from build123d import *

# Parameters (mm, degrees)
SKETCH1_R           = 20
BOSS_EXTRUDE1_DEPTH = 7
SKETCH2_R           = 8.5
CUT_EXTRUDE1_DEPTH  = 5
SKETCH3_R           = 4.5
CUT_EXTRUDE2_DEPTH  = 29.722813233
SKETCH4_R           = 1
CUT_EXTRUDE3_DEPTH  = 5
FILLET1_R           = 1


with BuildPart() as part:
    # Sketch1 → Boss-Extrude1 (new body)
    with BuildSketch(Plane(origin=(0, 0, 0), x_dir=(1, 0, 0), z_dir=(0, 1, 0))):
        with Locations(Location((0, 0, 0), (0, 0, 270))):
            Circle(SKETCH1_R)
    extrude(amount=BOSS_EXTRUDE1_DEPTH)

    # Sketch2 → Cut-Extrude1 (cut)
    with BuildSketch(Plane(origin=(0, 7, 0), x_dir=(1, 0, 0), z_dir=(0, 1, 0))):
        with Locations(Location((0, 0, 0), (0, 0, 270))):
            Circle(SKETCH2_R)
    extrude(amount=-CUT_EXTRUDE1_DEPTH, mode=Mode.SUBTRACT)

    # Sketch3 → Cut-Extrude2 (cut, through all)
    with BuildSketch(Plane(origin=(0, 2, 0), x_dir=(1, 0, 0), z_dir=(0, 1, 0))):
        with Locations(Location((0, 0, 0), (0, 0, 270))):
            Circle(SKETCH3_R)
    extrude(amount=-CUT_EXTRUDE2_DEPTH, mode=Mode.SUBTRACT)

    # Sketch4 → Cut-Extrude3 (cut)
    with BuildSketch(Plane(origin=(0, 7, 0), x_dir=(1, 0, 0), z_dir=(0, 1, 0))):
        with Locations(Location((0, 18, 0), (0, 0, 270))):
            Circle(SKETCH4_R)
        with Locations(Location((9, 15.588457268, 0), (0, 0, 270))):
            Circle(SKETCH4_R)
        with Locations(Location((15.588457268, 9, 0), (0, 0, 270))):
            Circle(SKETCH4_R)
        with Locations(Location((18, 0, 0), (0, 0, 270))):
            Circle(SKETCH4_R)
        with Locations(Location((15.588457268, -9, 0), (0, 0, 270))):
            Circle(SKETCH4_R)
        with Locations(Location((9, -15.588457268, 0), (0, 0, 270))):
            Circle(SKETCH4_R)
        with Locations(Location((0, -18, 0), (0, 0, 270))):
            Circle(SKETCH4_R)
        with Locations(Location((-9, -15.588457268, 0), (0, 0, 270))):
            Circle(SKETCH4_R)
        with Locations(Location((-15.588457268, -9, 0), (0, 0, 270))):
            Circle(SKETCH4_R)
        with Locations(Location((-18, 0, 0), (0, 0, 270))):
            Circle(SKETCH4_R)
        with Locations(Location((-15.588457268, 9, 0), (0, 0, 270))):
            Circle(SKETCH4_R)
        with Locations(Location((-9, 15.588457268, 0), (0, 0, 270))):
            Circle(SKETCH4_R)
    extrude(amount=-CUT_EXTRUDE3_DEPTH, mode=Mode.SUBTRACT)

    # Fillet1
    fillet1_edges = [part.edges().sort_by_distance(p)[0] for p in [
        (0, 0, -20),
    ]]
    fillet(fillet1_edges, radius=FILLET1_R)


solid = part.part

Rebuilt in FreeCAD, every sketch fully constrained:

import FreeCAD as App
import Part
import Sketcher
Q = App.Units.Quantity


def edges_at(feature, points):
    """Names of the edges that pass closest to the given points."""
    edges = feature.Shape.Edges
    near = lambda p: min(range(len(edges)), key=lambda i: edges[i].distToShape(Part.Vertex(*p))[0])
    return sorted({f"Edge{near(p) + 1}" for p in points})

doc = App.newDocument("Part")
body = doc.addObject("PartDesign::Body", "Body")

sketch1 = body.newObject("Sketcher::SketchObject", "Sketch")
sketch1.AttachmentSupport = (doc.getObject("XZ_Plane"), [""])
sketch1.MapMode = "FlatFace"
sketch1.addGeometry(Part.Circle(App.Vector(0, 0, 0), App.Vector(0, 0, 1), 20), False)
sketch1.addConstraint(Sketcher.Constraint("Coincident", 0, 3, -1, 1))
sketch1.addConstraint(Sketcher.Constraint("Diameter", 0, Q("40 mm")))
pad1 = body.newObject("PartDesign::Pad", "Pad")
pad1.Profile = sketch1
pad1.Length = 7
pad1.Reversed = True

sketch2 = body.newObject("Sketcher::SketchObject", "Sketch001")
sketch2.AttachmentSupport = (doc.getObject("XZ_Plane"), [""])
sketch2.MapMode = "FlatFace"
sketch2.AttachmentOffset = App.Placement(App.Vector(0, 0, -7), App.Rotation())
sketch2.addGeometry(Part.Circle(App.Vector(0, 0, 0), App.Vector(0, 0, 1), 8.5), False)
sketch2.addConstraint(Sketcher.Constraint("Coincident", 0, 3, -1, 1))
sketch2.addConstraint(Sketcher.Constraint("Diameter", 0, Q("17 mm")))
pocket1 = body.newObject("PartDesign::Pocket", "Pocket")
pocket1.Profile = sketch2
pocket1.Length = 5
pocket1.Reversed = True

sketch3 = body.newObject("Sketcher::SketchObject", "Sketch002")
sketch3.AttachmentSupport = (doc.getObject("XZ_Plane"), [""])
sketch3.MapMode = "FlatFace"
sketch3.AttachmentOffset = App.Placement(App.Vector(0, 0, -2), App.Rotation())
sketch3.addGeometry(Part.Circle(App.Vector(0, 0, 0), App.Vector(0, 0, 1), 4.5), False)
sketch3.addConstraint(Sketcher.Constraint("Coincident", 0, 3, -1, 1))
sketch3.addConstraint(Sketcher.Constraint("Diameter", 0, Q("9 mm")))
pocket2 = body.newObject("PartDesign::Pocket", "Pocket001")
pocket2.Profile = sketch3
pocket2.Type = "ThroughAll"
pocket2.Reversed = True

sketch4 = body.newObject("Sketcher::SketchObject", "Sketch003")
sketch4.AttachmentSupport = (doc.getObject("XZ_Plane"), [""])
sketch4.MapMode = "FlatFace"
sketch4.AttachmentOffset = App.Placement(App.Vector(0, 0, -7), App.Rotation())
sketch4.addGeometry(Part.Circle(App.Vector(0, -18, 0), App.Vector(0, 0, 1), 1), False)
sketch4.addGeometry(Part.Circle(App.Vector(9, -15.588457, 0), App.Vector(0, 0, 1), 1), False)
sketch4.addGeometry(Part.Circle(App.Vector(15.588457, -9, 0), App.Vector(0, 0, 1), 1), False)
sketch4.addGeometry(Part.Circle(App.Vector(18, 0, 0), App.Vector(0, 0, 1), 1), False)
sketch4.addGeometry(Part.Circle(App.Vector(15.588457, 9, 0), App.Vector(0, 0, 1), 1), False)
sketch4.addGeometry(Part.Circle(App.Vector(9, 15.588457, 0), App.Vector(0, 0, 1), 1), False)
sketch4.addGeometry(Part.Circle(App.Vector(0, 18, 0), App.Vector(0, 0, 1), 1), False)
sketch4.addGeometry(Part.Circle(App.Vector(-9, 15.588457, 0), App.Vector(0, 0, 1), 1), False)
sketch4.addGeometry(Part.Circle(App.Vector(-15.588457, 9, 0), App.Vector(0, 0, 1), 1), False)
sketch4.addGeometry(Part.Circle(App.Vector(-18, 0, 0), App.Vector(0, 0, 1), 1), False)
sketch4.addGeometry(Part.Circle(App.Vector(-15.588457, -9, 0), App.Vector(0, 0, 1), 1), False)
sketch4.addGeometry(Part.Circle(App.Vector(-9, -15.588457, 0), App.Vector(0, 0, 1), 1), False)
sketch4.addConstraint(Sketcher.Constraint("Equal", 0, 1))
sketch4.addConstraint(Sketcher.Constraint("Equal", 1, 2))
sketch4.addConstraint(Sketcher.Constraint("Equal", 2, 3))
sketch4.addConstraint(Sketcher.Constraint("Equal", 3, 4))
sketch4.addConstraint(Sketcher.Constraint("Equal", 4, 5))
sketch4.addConstraint(Sketcher.Constraint("Equal", 5, 6))
sketch4.addConstraint(Sketcher.Constraint("Equal", 6, 7))
sketch4.addConstraint(Sketcher.Constraint("Equal", 7, 8))
sketch4.addConstraint(Sketcher.Constraint("Equal", 8, 9))
sketch4.addConstraint(Sketcher.Constraint("Equal", 9, 10))
sketch4.addConstraint(Sketcher.Constraint("Equal", 10, 11))
sketch4.addConstraint(Sketcher.Constraint("Symmetric", 0, 3, 6, 3, -1, 1))
sketch4.addConstraint(Sketcher.Constraint("Symmetric", 1, 3, 7, 3, -1, 1))
sketch4.addConstraint(Sketcher.Constraint("Symmetric", 2, 3, 8, 3, -1, 1))
sketch4.addConstraint(Sketcher.Constraint("Symmetric", 3, 3, 9, 3, -1, 1))
sketch4.addConstraint(Sketcher.Constraint("Symmetric", 4, 3, 10, 3, -1, 1))
sketch4.addConstraint(Sketcher.Constraint("Symmetric", 5, 3, 11, 3, -1, 1))
sketch4.addConstraint(Sketcher.Constraint("Symmetric", 5, 3, 7, 3, -2))
sketch4.addConstraint(Sketcher.Constraint("Symmetric", 4, 3, 8, 3, -2))
sketch4.addConstraint(Sketcher.Constraint("PointOnObject", 0, 3, -2))
sketch4.addConstraint(Sketcher.Constraint("PointOnObject", 3, 3, -1))
sketch4.addConstraint(Sketcher.Constraint("Diameter", 0, Q("2 mm")))
sketch4.addConstraint(Sketcher.Constraint("DistanceY", 0, 3, -1, 1, Q("18 mm")))
sketch4.addConstraint(Sketcher.Constraint("DistanceX", -1, 1, 1, 3, Q("9 mm")))
sketch4.addConstraint(Sketcher.Constraint("DistanceY", 2, 3, -1, 1, Q("9 mm")))
sketch4.addConstraint(Sketcher.Constraint("DistanceX", -1, 1, 3, 3, Q("18 mm")))
sketch4.addConstraint(Sketcher.Constraint("DistanceY", 1, 3, -1, 1, Q("15.588457 mm")))
sketch4.addConstraint(Sketcher.Constraint("DistanceX", -1, 1, 2, 3, Q("15.588457 mm")))
pocket3 = body.newObject("PartDesign::Pocket", "Pocket002")
pocket3.Profile = sketch4
pocket3.Length = 5
pocket3.Reversed = True
doc.recompute()

fillet = body.newObject("PartDesign::Fillet", "Fillet")
fillet.Base = (pocket3, edges_at(pocket3, [(0, 0, -20)]))
fillet.Radius = 1

doc.recompute()
